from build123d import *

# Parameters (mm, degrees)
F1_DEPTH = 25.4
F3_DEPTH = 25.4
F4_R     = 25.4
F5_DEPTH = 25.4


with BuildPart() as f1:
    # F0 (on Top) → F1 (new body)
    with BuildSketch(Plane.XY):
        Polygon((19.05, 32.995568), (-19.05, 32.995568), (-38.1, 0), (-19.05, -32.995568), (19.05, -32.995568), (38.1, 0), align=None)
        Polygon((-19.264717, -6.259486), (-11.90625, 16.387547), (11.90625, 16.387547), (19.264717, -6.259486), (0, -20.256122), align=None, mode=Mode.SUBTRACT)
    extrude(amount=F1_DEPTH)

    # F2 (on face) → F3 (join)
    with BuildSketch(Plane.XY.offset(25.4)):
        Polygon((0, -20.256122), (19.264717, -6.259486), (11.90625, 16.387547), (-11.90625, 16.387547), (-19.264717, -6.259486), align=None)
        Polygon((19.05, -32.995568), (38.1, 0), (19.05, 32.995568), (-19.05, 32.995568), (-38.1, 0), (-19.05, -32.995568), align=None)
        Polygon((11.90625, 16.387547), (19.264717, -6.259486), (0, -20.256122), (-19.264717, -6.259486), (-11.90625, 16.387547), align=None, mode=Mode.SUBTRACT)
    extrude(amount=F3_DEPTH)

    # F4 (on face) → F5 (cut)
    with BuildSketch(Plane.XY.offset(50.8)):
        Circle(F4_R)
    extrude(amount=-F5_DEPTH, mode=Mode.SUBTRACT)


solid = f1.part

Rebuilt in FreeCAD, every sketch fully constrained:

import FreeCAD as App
import Part
import Sketcher

V = App.Vector
Q = App.Units.Quantity

doc = App.newDocument("Part")
body = doc.addObject("PartDesign::Body", "Body")

# Sketch on XY plane
sketch1 = body.newObject("Sketcher::SketchObject", "Sketch")
sketch1.AttachmentSupport = (doc.getObject("XY_Plane"), [""])
sketch1.MapMode = "FlatFace"
sketch1.addGeometry(Part.LineSegment(V(19, 33, 0), V(-19, 33, 0)), False)
sketch1.addGeometry(Part.LineSegment(V(-19, 33, 0), V(-38, 0, 0)), False)
sketch1.addGeometry(Part.LineSegment(V(-38, 0, 0), V(-19, -33, 0)), False)
sketch1.addGeometry(Part.LineSegment(V(-19, -33, 0), V(19, -33, 0)), False)
sketch1.addGeometry(Part.LineSegment(V(19, -33, 0), V(38, 0, 0)), False)
sketch1.addGeometry(Part.LineSegment(V(38, 0, 0), V(19, 33, 0)), False)
sketch1.addGeometry(Part.LineSegment(V(0, -20, 0), V(-19, -6, 0)), False)
sketch1.addGeometry(Part.LineSegment(V(-19, -6, 0), V(-12, 16, 0)), False)
sketch1.addGeometry(Part.LineSegment(V(-12, 16, 0), V(12, 16, 0)), False)
sketch1.addGeometry(Part.LineSegment(V(12, 16, 0), V(19, -6, 0)), False)
sketch1.addGeometry(Part.LineSegment(V(19, -6, 0), V(0, -20, 0)), False)
sketch1.addConstraint(Sketcher.Constraint("Coincident", 0, 2, 1, 1))
sketch1.addConstraint(Sketcher.Constraint("Coincident", 1, 2, 2, 1))
sketch1.addConstraint(Sketcher.Constraint("Coincident", 2, 2, 3, 1))
sketch1.addConstraint(Sketcher.Constraint("Coincident", 3, 2, 4, 1))
sketch1.addConstraint(Sketcher.Constraint("Coincident", 4, 2, 5, 1))
sketch1.addConstraint(Sketcher.Constraint("Coincident", 5, 2, 0, 1))
sketch1.addConstraint(Sketcher.Constraint("Coincident", 6, 2, 7, 1))
sketch1.addConstraint(Sketcher.Constraint("Coincident", 7, 2, 8, 1))
sketch1.addConstraint(Sketcher.Constraint("Coincident", 8, 2, 9, 1))
sketch1.addConstraint(Sketcher.Constraint("Coincident", 9, 2, 10, 1))
sketch1.addConstraint(Sketcher.Constraint("Coincident", 10, 2, 6, 1))
sketch1.addConstraint(Sketcher.Constraint("Horizontal", 0))
sketch1.addConstraint(Sketcher.Constraint("Horizontal", 3))
sketch1.addConstraint(Sketcher.Constraint("Horizontal", 8))
sketch1.addConstraint(Sketcher.Constraint("Symmetric", 0, 2, 3, 2, -1, 1))
sketch1.addConstraint(Sketcher.Constraint("Symmetric", 1, 2, 4, 2, -1, 1))
sketch1.addConstraint(Sketcher.Constraint("Symmetric", 6, 2, 9, 2, -2))
sketch1.addConstraint(Sketcher.Constraint("PointOnObject", 1, 2, -1))
sketch1.addConstraint(Sketcher.Constraint("PointOnObject", 10, 2, -2))
sketch1.addConstraint(Sketcher.Constraint("Parallel", 2, 5))
sketch1.addConstraint(Sketcher.Constraint("Vertical", 0, 2, 2, 2))
sketch1.addConstraint(Sketcher.Constraint("Equal", 6, 7))
sketch1.addConstraint(Sketcher.Constraint("Equal", 7, 9))
sketch1.addConstraint(Sketcher.Constraint("DistanceX", 0, 2, 0, 1, Q("1.5 in")))
sketch1.addConstraint(Sketcher.Constraint("Angle", 1, Q("-120 deg")))
sketch1.addConstraint(Sketcher.Constraint("Angle", 6, Q("144 deg")))
sketch1.addConstraint(Sketcher.Constraint("Angle", 7, Q("72 deg")))
sketch1.addConstraint(Sketcher.Constraint("DistanceX", 1, 2, 4, 2, Q("3 in")))
sketch1.addConstraint(Sketcher.Constraint("DistanceX", 8, 1, 8, 2, Q("0.9375 in")))
sketch1.addConstraint(Sketcher.Constraint("DistanceY", 2, 2, 6, 2, 26.736082))
pad1 = body.newObject("PartDesign::Pad", "Pad")
pad1.Profile = sketch1
pad1.Length = Q("1 in")

# Sketch on XY plane
sketch2 = body.newObject("Sketcher::SketchObject", "Sketch001")
sketch2.AttachmentSupport = (doc.getObject("XY_Plane"), [""])
sketch2.MapMode = "FlatFace"
sketch2.AttachmentOffset = App.Placement(V(0, 0, 1 * 25.4), App.Rotation())
sketch2.addGeometry(Part.LineSegment(V(19, -33, 0), V(38, 0, 0)), False)
sketch2.addGeometry(Part.LineSegment(V(38, 0, 0), V(19, 33, 0)), False)
sketch2.addGeometry(Part.LineSegment(V(19, 33, 0), V(-19, 33, 0)), False)
sketch2.addGeometry(Part.LineSegment(V(-19, 33, 0), V(-38, 0, 0)), False)
sketch2.addGeometry(Part.LineSegment(V(-38, 0, 0), V(-19, -33, 0)), False)
sketch2.addGeometry(Part.LineSegment(V(-19, -33, 0), V(19, -33, 0)), False)
sketch2.addGeometry(Part.LineSegment(V(-12, 16, 0), V(12, 16, 0)), False)
sketch2.addGeometry(Part.LineSegment(V(12, 16, 0), V(19, -6, 0)), False)
sketch2.addGeometry(Part.LineSegment(V(19, -6, 0), V(0, -20, 0)), False)
sketch2.addGeometry(Part.LineSegment(V(0, -20, 0), V(-19, -6, 0)), False)
sketch2.addGeometry(Part.LineSegment(V(-19, -6, 0), V(-12, 16, 0)), False)
sketch2.addConstraint(Sketcher.Constraint("Coincident", 0, 2, 1, 1))
sketch2.addConstraint(Sketcher.Constraint("Coincident", 1, 2, 2, 1))
sketch2.addConstraint(Sketcher.Constraint("Coincident", 2, 2, 3, 1))
sketch2.addConstraint(Sketcher.Constraint("Coincident", 3, 2, 4, 1))
sketch2.addConstraint(Sketcher.Constraint("Coincident", 4, 2, 5, 1))
sketch2.addConstraint(Sketcher.Constraint("Coincident", 5, 2, 0, 1))
sketch2.addConstraint(Sketcher.Constraint("Coincident", 6, 2, 7, 1))
sketch2.addConstraint(Sketcher.Constraint("Coincident", 7, 2, 8, 1))
sketch2.addConstraint(Sketcher.Constraint("Coincident", 8, 2, 9, 1))
sketch2.addConstraint(Sketcher.Constraint("Coincident", 9, 2, 10, 1))
sketch2.addConstraint(Sketcher.Constraint("Coincident", 10, 2, 6, 1))
sketch2.addConstraint(Sketcher.Constraint("Horizontal", 2))
sketch2.addConstraint(Sketcher.Constraint("Horizontal", 5))
sketch2.addConstraint(Sketcher.Constraint("Horizontal", 6))
sketch2.addConstraint(Sketcher.Constraint("Symmetric", 0, 2, 3, 2, -1, 1))
sketch2.addConstraint(Sketcher.Constraint("Symmetric", 1, 2, 4, 2, -1, 1))
sketch2.addConstraint(Sketcher.Constraint("Symmetric", 7, 2, 9, 2, -2))
sketch2.addConstraint(Sketcher.Constraint("PointOnObject", 0, 2, -1))
sketch2.addConstraint(Sketcher.Constraint("PointOnObject", 8, 2, -2))
sketch2.addConstraint(Sketcher.Constraint("Parallel", 0, 3))
sketch2.addConstraint(Sketcher.Constraint("Vertical", 2, 2, 4, 2))
sketch2.addConstraint(Sketcher.Constraint("Equal", 7, 8))
sketch2.addConstraint(Sketcher.Constraint("Equal", 9, 10))
sketch2.addConstraint(Sketcher.Constraint("DistanceX", 2, 2, 2, 1, Q("1.5 in")))
sketch2.addConstraint(Sketcher.Constraint("Angle", 0, Q("60 deg")))
sketch2.addConstraint(Sketcher.Constraint("Angle", 7, Q("-72 deg")))
sketch2.addConstraint(Sketcher.Constraint("Angle", 8, Q("-144 deg")))
sketch2.addConstraint(Sketcher.Constraint("DistanceX", 3, 2, 0, 2, Q("3 in")))
sketch2.addConstraint(Sketcher.Constraint("DistanceX", 6, 1, 6, 2, Q("0.9375 in")))
sketch2.addConstraint(Sketcher.Constraint("DistanceY", 6, 2, 1, 2, 16.608021))
pad2 = body.newObject("PartDesign::Pad", "Pad001")
pad2.Profile = sketch2
pad2.Length = Q("1 in")

# Sketch on XY plane
sketch3 = body.newObject("Sketcher::SketchObject", "Sketch002")
sketch3.AttachmentSupport = (doc.getObject("XY_Plane"), [""])
sketch3.MapMode = "FlatFace"
sketch3.AttachmentOffset = App.Placement(V(0, 0, 2 * 25.4), App.Rotation())
sketch3.addGeometry(Part.Circle(V(0, 0, 0), V(0, 0, 1), 25), False)
sketch3.addConstraint(Sketcher.Constraint("Coincident", 0, 3, -1, 1))
sketch3.addConstraint(Sketcher.Constraint("Diameter", 0, Q("2 in")))
pocket1 = body.newObject("PartDesign::Pocket", "Pocket")
pocket1.Profile = sketch3
pocket1.Length = Q("1 in")

doc.recompute()
